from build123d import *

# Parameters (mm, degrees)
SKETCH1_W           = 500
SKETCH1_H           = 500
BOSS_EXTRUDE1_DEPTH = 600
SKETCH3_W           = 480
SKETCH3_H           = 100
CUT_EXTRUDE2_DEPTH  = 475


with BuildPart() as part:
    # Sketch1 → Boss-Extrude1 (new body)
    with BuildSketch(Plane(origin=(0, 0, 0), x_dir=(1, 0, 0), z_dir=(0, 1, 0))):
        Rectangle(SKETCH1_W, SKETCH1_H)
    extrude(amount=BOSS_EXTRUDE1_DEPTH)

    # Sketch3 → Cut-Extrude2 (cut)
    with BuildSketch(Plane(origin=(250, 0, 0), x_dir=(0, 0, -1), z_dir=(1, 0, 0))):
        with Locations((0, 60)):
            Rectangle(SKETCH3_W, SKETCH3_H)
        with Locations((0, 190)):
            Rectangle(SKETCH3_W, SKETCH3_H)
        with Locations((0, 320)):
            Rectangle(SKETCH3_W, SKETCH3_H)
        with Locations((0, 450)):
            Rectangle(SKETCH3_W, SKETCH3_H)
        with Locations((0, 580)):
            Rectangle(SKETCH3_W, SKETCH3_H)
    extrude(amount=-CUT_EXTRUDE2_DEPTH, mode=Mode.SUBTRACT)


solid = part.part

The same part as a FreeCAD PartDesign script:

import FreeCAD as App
import Part
import Sketcher
from FreeCAD import Vector

doc = App.newDocument("Part")
body = doc.addObject("PartDesign::Body", "Body")

sketch1 = doc.addObject("Sketcher::SketchObject", "Sketch")
body.addObject(sketch1)
sketch1.AttachmentSupport = (doc.XZ_Plane, [""])
sketch1.MapMode = "FlatFace"
sketch1.addGeometry([
    Part.LineSegment(Vector(-250, -250, 0), Vector(-250, 250, 0)),
    Part.LineSegment(Vector(-250, 250, 0), Vector(250, 250, 0)),
    Part.LineSegment(Vector(250, 250, 0), Vector(250, -250, 0)),
    Part.LineSegment(Vector(250, -250, 0), Vector(-250, -250, 0)),
], False)
sketch1.addConstraint([
    Sketcher.Constraint("Coincident", 0, 2, 1, 1),
    Sketcher.Constraint("Coincident", 1, 2, 2, 1),
    Sketcher.Constraint("Coincident", 2, 2, 3, 1),
    Sketcher.Constraint("Coincident", 3, 2, 0, 1),
    Sketcher.Constraint("Vertical", 0),
    Sketcher.Constraint("Horizontal", 1),
    Sketcher.Constraint("Vertical", 2),
    Sketcher.Constraint("Horizontal", 3),
    Sketcher.Constraint("Symmetric", 0, 2, 2, 2, -1, 1),
    Sketcher.Constraint("Equal", 3, 0),
    Sketcher.Constraint("DistanceX", 1, 1, 1, 2, 500.0),
])
pad1 = doc.addObject("PartDesign::Pad", "Pad")
body.addObject(pad1)
pad1.Profile = sketch1
pad1.Length = 600
pad1.Reversed = True

sketch2 = doc.addObject("Sketcher::SketchObject", "Sketch001")
body.addObject(sketch2)
sketch2.AttachmentSupport = (doc.YZ_Plane, [""])
sketch2.MapMode = "FlatFace"
sketch2.AttachmentOffset = App.Placement(Vector(0, 0, 250), App.Rotation())
sketch2.addGeometry([
    Part.LineSegment(Vector(110, 240, 0), Vector(10, 240, 0)),
    Part.LineSegment(Vector(10, 240, 0), Vector(10, -240, 0)),
    Part.LineSegment(Vector(10, -240, 0), Vector(110, -240, 0)),
    Part.LineSegment(Vector(110, -240, 0), Vector(110, 240, 0)),
    Part.LineSegment(Vector(240, 240, 0), Vector(140, 240, 0)),
    Part.LineSegment(Vector(140, 240, 0), Vector(140, -240, 0)),
    Part.LineSegment(Vector(140, -240, 0), Vector(240, -240, 0)),
    Part.LineSegment(Vector(240, -240, 0), Vector(240, 240, 0)),
    Part.LineSegment(Vector(370, 240, 0), Vector(270, 240, 0)),
    Part.LineSegment(Vector(270, 240, 0), Vector(270, -240, 0)),
    Part.LineSegment(Vector(270, -240, 0), Vector(370, -240, 0)),
    Part.LineSegment(Vector(370, -240, 0), Vector(370, 240, 0)),
    Part.LineSegment(Vector(500, 240, 0), Vector(400, 240, 0)),
    Part.LineSegment(Vector(400, 240, 0), Vector(400, -240, 0)),
    Part.LineSegment(Vector(400, -240, 0), Vector(500, -240, 0)),
    Part.LineSegment(Vector(500, -240, 0), Vector(500, 240, 0)),
    Part.LineSegment(Vector(630, 240, 0), Vector(530, 240, 0)),
    Part.LineSegment(Vector(530, 240, 0), Vector(530, -240, 0)),
    Part.LineSegment(Vector(530, -240, 0), Vector(630, -240, 0)),
    Part.LineSegment(Vector(630, -240, 0), Vector(630, 240, 0)),
], False)
sketch2.addConstraint([
    Sketcher.Constraint("Coincident", 0, 2, 1, 1),
    Sketcher.Constraint("Coincident", 1, 2, 2, 1),
    Sketcher.Constraint("Coincident", 2, 2, 3, 1),
    Sketcher.Constraint("Coincident", 3, 2, 0, 1),
    Sketcher.Constraint("Coincident", 4, 2, 5, 1),
    Sketcher.Constraint("Coincident", 5, 2, 6, 1),
    Sketcher.Constraint("Coincident", 6, 2, 7, 1),
    Sketcher.Constraint("Coincident", 7, 2, 4, 1),
    Sketcher.Constraint("Coincident", 8, 2, 9, 1),
    Sketcher.Constraint("Coincident", 9, 2, 10, 1),
    Sketcher.Constraint("Coincident", 10, 2, 11, 1),
    Sketcher.Constraint("Coincident", 11, 2, 8, 1),
    Sketcher.Constraint("Coincident", 12, 2, 13, 1),
    Sketcher.Constraint("Coincident", 13, 2, 14, 1),
    Sketcher.Constraint("Coincident", 14, 2, 15, 1),
    Sketcher.Constraint("Coincident", 15, 2, 12, 1),
    Sketcher.Constraint("Coincident", 16, 2, 17, 1),
    Sketcher.Constraint("Coincident", 17, 2, 18, 1),
    Sketcher.Constraint("Coincident", 18, 2, 19, 1),
    Sketcher.Constraint("Coincident", 19, 2, 16, 1),
    Sketcher.Constraint("Horizontal", 0),
    Sketcher.Constraint("Vertical", 1),
    Sketcher.Constraint("Horizontal", 2),
    Sketcher.Constraint("Vertical", 3),
    Sketcher.Constraint("Horizontal", 4),
    Sketcher.Constraint("Vertical", 5),
    Sketcher.Constraint("Horizontal", 6),
    Sketcher.Constraint("Vertical", 7),
    Sketcher.Constraint("Horizontal", 8),
    Sketcher.Constraint("Vertical", 9),
    Sketcher.Constraint("Horizontal", 10),
    Sketcher.Constraint("Vertical", 11),
    Sketcher.Constraint("Horizontal", 12),
    Sketcher.Constraint("Vertical", 13),
    Sketcher.Constraint("Horizontal", 14),
    Sketcher.Constraint("Vertical", 15),
    Sketcher.Constraint("Horizontal", 16),
    Sketcher.Constraint("Vertical", 17),
    Sketcher.Constraint("Horizontal", 18),
    Sketcher.Constraint("Vertical", 19),
    Sketcher.Constraint("Horizontal", 3, 2, 4, 2),
    Sketcher.Constraint("Horizontal", 2, 2, 5, 2),
    Sketcher.Constraint("Horizontal", 7, 2, 8, 2),
    Sketcher.Constraint("Horizontal", 6, 2, 9, 2),
    Sketcher.Constraint("Horizontal", 11, 2, 12, 2),
    Sketcher.Constraint("Horizontal", 10, 2, 13, 2),
    Sketcher.Constraint("Horizontal", 15, 2, 16, 2),
    Sketcher.Constraint("Horizontal", 14, 2, 17, 2),
    Sketcher.Constraint("Equal", 2, 4),
    Sketcher.Constraint("Equal", 6, 8),
    Sketcher.Constraint("Equal", 10, 12),
    Sketcher.Constraint("Equal", 14, 16),
    Sketcher.Constraint("DistanceX", 0, 2, 0, 1, 100.0),
    Sketcher.Constraint("DistanceY", 1, 2, 1, 1, 480.0),
    Sketcher.Constraint("DistanceX", -1, 1, 0, 2, 10.0),
    Sketcher.Constraint("DistanceY", -1, 1, 0, 2, 240.0),
    Sketcher.Constraint("DistanceX", -1, 1, 4, 2, 140.0),
    Sketcher.Constraint("DistanceX", -1, 1, 8, 2, 270.0),
    Sketcher.Constraint("DistanceX", -1, 1, 12, 2, 400.0),
    Sketcher.Constraint("DistanceX", -1, 1, 16, 2, 530.0),
])
pocket1 = doc.addObject("PartDesign::Pocket", "Pocket")
body.addObject(pocket1)
pocket1.Profile = sketch2
pocket1.Length = 475

doc.recompute()
